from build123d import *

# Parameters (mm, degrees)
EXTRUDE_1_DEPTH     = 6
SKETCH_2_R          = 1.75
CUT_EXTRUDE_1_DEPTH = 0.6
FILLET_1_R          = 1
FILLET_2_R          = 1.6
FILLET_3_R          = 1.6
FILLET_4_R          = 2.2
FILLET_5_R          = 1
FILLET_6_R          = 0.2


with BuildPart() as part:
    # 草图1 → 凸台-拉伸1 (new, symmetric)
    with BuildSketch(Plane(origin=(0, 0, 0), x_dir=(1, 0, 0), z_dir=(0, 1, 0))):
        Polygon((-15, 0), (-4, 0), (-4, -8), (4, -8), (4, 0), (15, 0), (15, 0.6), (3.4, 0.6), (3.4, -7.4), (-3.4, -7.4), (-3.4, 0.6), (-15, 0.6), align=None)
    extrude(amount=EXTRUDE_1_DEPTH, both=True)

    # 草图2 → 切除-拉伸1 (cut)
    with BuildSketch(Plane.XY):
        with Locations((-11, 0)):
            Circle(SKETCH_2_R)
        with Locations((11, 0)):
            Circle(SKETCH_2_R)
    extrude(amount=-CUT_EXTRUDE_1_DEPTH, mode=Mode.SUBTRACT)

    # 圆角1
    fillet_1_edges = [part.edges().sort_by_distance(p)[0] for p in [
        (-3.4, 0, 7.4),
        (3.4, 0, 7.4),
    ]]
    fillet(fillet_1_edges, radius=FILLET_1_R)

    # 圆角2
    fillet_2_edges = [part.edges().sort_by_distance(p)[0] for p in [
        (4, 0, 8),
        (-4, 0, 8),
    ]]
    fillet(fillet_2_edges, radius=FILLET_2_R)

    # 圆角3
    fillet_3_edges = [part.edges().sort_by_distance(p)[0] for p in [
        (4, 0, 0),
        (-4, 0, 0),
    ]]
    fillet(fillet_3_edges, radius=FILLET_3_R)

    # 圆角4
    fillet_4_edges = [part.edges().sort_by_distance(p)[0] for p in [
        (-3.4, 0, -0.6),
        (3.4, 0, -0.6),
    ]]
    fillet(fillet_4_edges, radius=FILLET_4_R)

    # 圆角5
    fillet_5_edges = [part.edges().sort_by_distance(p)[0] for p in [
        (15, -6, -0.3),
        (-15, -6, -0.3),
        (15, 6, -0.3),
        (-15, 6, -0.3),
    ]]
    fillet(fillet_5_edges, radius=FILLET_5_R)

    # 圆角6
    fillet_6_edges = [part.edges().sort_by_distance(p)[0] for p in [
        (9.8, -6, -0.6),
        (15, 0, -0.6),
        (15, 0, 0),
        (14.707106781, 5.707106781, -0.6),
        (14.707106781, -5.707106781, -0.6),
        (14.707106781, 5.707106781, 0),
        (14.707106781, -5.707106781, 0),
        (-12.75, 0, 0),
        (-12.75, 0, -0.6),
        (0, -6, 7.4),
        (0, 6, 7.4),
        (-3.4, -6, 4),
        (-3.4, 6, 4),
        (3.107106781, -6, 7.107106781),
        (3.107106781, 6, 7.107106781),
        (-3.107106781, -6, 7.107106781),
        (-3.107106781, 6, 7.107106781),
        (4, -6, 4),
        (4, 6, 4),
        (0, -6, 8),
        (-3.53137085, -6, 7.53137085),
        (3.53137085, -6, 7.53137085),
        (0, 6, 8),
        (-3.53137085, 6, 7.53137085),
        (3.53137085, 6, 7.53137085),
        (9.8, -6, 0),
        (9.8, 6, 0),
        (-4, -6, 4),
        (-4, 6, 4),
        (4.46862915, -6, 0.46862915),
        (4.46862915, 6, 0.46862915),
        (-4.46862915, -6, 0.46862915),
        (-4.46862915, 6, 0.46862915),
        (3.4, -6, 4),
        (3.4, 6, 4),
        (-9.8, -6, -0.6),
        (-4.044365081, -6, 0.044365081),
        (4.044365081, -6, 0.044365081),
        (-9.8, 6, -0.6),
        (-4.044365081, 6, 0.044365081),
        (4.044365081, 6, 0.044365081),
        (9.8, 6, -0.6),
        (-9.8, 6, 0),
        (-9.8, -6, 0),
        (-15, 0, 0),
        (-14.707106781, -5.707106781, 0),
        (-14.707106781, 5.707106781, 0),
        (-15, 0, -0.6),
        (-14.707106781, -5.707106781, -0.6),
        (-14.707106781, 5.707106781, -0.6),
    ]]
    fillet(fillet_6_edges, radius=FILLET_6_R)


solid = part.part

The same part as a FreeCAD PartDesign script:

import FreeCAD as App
import Part
import Sketcher


def edges_at(feature, points):
    """Names of the edges that pass closest to the given points."""
    edges = feature.Shape.Edges
    near = lambda p: min(range(len(edges)), key=lambda i: edges[i].distToShape(Part.Vertex(*p))[0])
    return sorted({f"Edge{near(p) + 1}" for p in points})

doc = App.newDocument("Part")
body = doc.addObject("PartDesign::Body", "Body")

# Sketch on XZ plane
sketch1 = body.newObject("Sketcher::SketchObject", "Sketch")
sketch1.AttachmentSupport = (doc.getObject("XZ_Plane"), [""])
sketch1.MapMode = "FlatFace"
sketch1.addGeometry(Part.LineSegment(App.Vector(-15, 0, 0), App.Vector(-4, 0, 0)), False)
sketch1.addGeometry(Part.LineSegment(App.Vector(-4, 0, 0), App.Vector(-4, 8, 0)), False)
sketch1.addGeometry(Part.LineSegment(App.Vector(-4, 8, 0), App.Vector(4, 8, 0)), False)
sketch1.addGeometry(Part.LineSegment(App.Vector(4, 8, 0), App.Vector(4, 0, 0)), False)
sketch1.addGeometry(Part.LineSegment(App.Vector(4, 0, 0), App.Vector(15, 0, 0)), False)
sketch1.addGeometry(Part.LineSegment(App.Vector(15, 0, 0), App.Vector(15, -0.6, 0)), False)
sketch1.addGeometry(Part.LineSegment(App.Vector(15, -0.6, 0), App.Vector(3.4, -0.6, 0)), False)
sketch1.addGeometry(Part.LineSegment(App.Vector(3.4, -0.6, 0), App.Vector(3.4, 7.4, 0)), False)
sketch1.addGeometry(Part.LineSegment(App.Vector(3.4, 7.4, 0), App.Vector(-3.4, 7.4, 0)), False)
sketch1.addGeometry(Part.LineSegment(App.Vector(-3.4, 7.4, 0), App.Vector(-3.4, -0.6, 0)), False)
sketch1.addGeometry(Part.LineSegment(App.Vector(-3.4, -0.6, 0), App.Vector(-15, -0.6, 0)), False)
sketch1.addGeometry(Part.LineSegment(App.Vector(-15, -0.6, 0), App.Vector(-15, 0, 0)), False)
sketch1.addConstraint(Sketcher.Constraint("Coincident", 0, 2, 1, 1))
sketch1.addConstraint(Sketcher.Constraint("Coincident", 1, 2, 2, 1))
sketch1.addConstraint(Sketcher.Constraint("Coincident", 2, 2, 3, 1))
sketch1.addConstraint(Sketcher.Constraint("Coincident", 3, 2, 4, 1))
sketch1.addConstraint(Sketcher.Constraint("Coincident", 4, 2, 5, 1))
sketch1.addConstraint(Sketcher.Constraint("Coincident", 5, 2, 6, 1))
sketch1.addConstraint(Sketcher.Constraint("Coincident", 6, 2, 7, 1))
sketch1.addConstraint(Sketcher.Constraint("Coincident", 7, 2, 8, 1))
sketch1.addConstraint(Sketcher.Constraint("Coincident", 8, 2, 9, 1))
sketch1.addConstraint(Sketcher.Constraint("Coincident", 9, 2, 10, 1))
sketch1.addConstraint(Sketcher.Constraint("Coincident", 10, 2, 11, 1))
sketch1.addConstraint(Sketcher.Constraint("Coincident", 11, 2, 0, 1))
sketch1.addConstraint(Sketcher.Constraint("Horizontal", 0))
sketch1.addConstraint(Sketcher.Constraint("Vertical", 1))
sketch1.addConstraint(Sketcher.Constraint("Horizontal", 2))
sketch1.addConstraint(Sketcher.Constraint("Vertical", 3))
sketch1.addConstraint(Sketcher.Constraint("Horizontal", 4))
sketch1.addConstraint(Sketcher.Constraint("Vertical", 5))
sketch1.addConstraint(Sketcher.Constraint("Horizontal", 6))
sketch1.addConstraint(Sketcher.Constraint("Vertical", 7))
sketch1.addConstraint(Sketcher.Constraint("Horizontal", 8))
sketch1.addConstraint(Sketcher.Constraint("Vertical", 9))
sketch1.addConstraint(Sketcher.Constraint("Horizontal", 10))
sketch1.addConstraint(Sketcher.Constraint("Vertical", 11))
sketch1.addConstraint(Sketcher.Constraint("Symmetric", 0, 2, 3, 2, -1, 1))
sketch1.addConstraint(Sketcher.Constraint("Symmetric", 6, 2, 9, 2, -2))
sketch1.addConstraint(Sketcher.Constraint("Symmetric", 4, 2, 11, 2, -2))
sketch1.addConstraint(Sketcher.Constraint("Equal", 2, 1))
sketch1.addConstraint(Sketcher.Constraint("Equal", 3, 7))
sketch1.addConstraint(Sketcher.Constraint("DistanceX", 0, 1, 0, 2, 11.0))
sketch1.addConstraint(Sketcher.Constraint("DistanceX", 2, 1, 2, 2, 8.0))
sketch1.addConstraint(Sketcher.Constraint("DistanceX", 6, 2, 6, 1, 11.6))
sketch1.addConstraint(Sketcher.Constraint("DistanceY", 5, 2, 5, 1, 0.6))
pad1 = body.newObject("PartDesign::Pad", "Pad")
pad1.Profile = sketch1
pad1.Length = 12
pad1.Midplane = True

# Sketch on XY plane
sketch2 = body.newObject("Sketcher::SketchObject", "Sketch001")
sketch2.AttachmentSupport = (doc.getObject("XY_Plane"), [""])
sketch2.MapMode = "FlatFace"
sketch2.addGeometry(Part.Circle(App.Vector(-11, 0, 0), App.Vector(0, 0, 1), 1.75), False)
sketch2.addGeometry(Part.Circle(App.Vector(11, 0, 0), App.Vector(0, 0, 1), 1.75), False)
sketch2.addConstraint(Sketcher.Constraint("Equal", 0, 1))
sketch2.addConstraint(Sketcher.Constraint("Symmetric", 0, 3, 1, 3, -1, 1))
sketch2.addConstraint(Sketcher.Constraint("PointOnObject", 0, 3, -1))
sketch2.addConstraint(Sketcher.Constraint("Diameter", 0, 3.5))
sketch2.addConstraint(Sketcher.Constraint("DistanceX", 0, 3, -1, 1, 11.0))
pocket1 = body.newObject("PartDesign::Pocket", "Pocket")
pocket1.Profile = sketch2
pocket1.Length = 0.6
doc.recompute()

fillet = body.newObject("PartDesign::Fillet", "Fillet")
fillet.Base = (pocket1, edges_at(pocket1, [(-3.4, 0, 7.4), (3.4, 0, 7.4)]))
fillet.Radius = 1
doc.recompute()

fillet2 = body.newObject("PartDesign::Fillet", "Fillet001")
fillet2.Base = (fillet, edges_at(fillet, [(4, 0, 8), (-4, 0, 8)]))
fillet2.Radius = 1.6
doc.recompute()

fillet3 = body.newObject("PartDesign::Fillet", "Fillet002")
fillet3.Base = (fillet2, edges_at(fillet2, [(4, 0, 0), (-4, 0, 0)]))
fillet3.Radius = 1.6
doc.recompute()

fillet4 = body.newObject("PartDesign::Fillet", "Fillet003")
fillet4.Base = (fillet3, edges_at(fillet3, [(-3.4, 0, -0.6), (3.4, 0, -0.6)]))
fillet4.Radius = 2.2
doc.recompute()

fillet5 = body.newObject("PartDesign::Fillet", "Fillet004")
fillet5.Base = (fillet4, edges_at(fillet4, [
    (15, -6, -0.3),
    (-15, -6, -0.3),
    (15, 6, -0.3),
    (-15, 6, -0.3),
]))
fillet5.Radius = 1
doc.recompute()

fillet6 = body.newObject("PartDesign::Fillet", "Fillet005")
fillet6.Base = (fillet5, edges_at(fillet5, [
    (9.8, -6, -0.6),
    (15, 0, -0.6),
    (15, 0, 0),
    (14.707, 5.707, -0.6),
    (14.707, -5.707, -0.6),
    (14.707, 5.707, 0),
    (14.707, -5.707, 0),
    (-12.75, 0, 0),
    (-12.75, 0, -0.6),
    (0, -6, 7.4),
    (0, 6, 7.4),
    (-3.4, -6, 4),
    (-3.4, 6, 4),
    (3.107, -6, 7.107),
    (3.107, 6, 7.107),
    (-3.107, -6, 7.107),
    (-3.107, 6, 7.107),
    (4, -6, 4),
    (4, 6, 4),
    (0, -6, 8),
    (-3.531, -6, 7.531),
    (3.531, -6, 7.531),
    (0, 6, 8),
    (-3.531, 6, 7.531),
    (3.531, 6, 7.531),
    (9.8, -6, 0),
    (9.8, 6, 0),
    (-4, -6, 4),
    (-4, 6, 4),
    (4.469, -6, 0.469),
    (4.469, 6, 0.469),
    (-4.469, -6, 0.469),
    (-4.469, 6, 0.469),
    (3.4, -6, 4),
    (3.4, 6, 4),
    (-9.8, -6, -0.6),
    (-4.044, -6, 0.044),
    (4.044, -6, 0.044),
    (-9.8, 6, -0.6),
    (-4.044, 6, 0.044),
    (4.044, 6, 0.044),
    (9.8, 6, -0.6),
    (-9.8, 6, 0),
    (-9.8, -6, 0),
    (-15, 0, 0),
    (-14.707, -5.707, 0),
    (-14.707, 5.707, 0),
    (-15, 0, -0.6),
    (-14.707, -5.707, -0.6),
    (-14.707, 5.707, -0.6),
]))
fillet6.Radius = 0.2

doc.recompute()
